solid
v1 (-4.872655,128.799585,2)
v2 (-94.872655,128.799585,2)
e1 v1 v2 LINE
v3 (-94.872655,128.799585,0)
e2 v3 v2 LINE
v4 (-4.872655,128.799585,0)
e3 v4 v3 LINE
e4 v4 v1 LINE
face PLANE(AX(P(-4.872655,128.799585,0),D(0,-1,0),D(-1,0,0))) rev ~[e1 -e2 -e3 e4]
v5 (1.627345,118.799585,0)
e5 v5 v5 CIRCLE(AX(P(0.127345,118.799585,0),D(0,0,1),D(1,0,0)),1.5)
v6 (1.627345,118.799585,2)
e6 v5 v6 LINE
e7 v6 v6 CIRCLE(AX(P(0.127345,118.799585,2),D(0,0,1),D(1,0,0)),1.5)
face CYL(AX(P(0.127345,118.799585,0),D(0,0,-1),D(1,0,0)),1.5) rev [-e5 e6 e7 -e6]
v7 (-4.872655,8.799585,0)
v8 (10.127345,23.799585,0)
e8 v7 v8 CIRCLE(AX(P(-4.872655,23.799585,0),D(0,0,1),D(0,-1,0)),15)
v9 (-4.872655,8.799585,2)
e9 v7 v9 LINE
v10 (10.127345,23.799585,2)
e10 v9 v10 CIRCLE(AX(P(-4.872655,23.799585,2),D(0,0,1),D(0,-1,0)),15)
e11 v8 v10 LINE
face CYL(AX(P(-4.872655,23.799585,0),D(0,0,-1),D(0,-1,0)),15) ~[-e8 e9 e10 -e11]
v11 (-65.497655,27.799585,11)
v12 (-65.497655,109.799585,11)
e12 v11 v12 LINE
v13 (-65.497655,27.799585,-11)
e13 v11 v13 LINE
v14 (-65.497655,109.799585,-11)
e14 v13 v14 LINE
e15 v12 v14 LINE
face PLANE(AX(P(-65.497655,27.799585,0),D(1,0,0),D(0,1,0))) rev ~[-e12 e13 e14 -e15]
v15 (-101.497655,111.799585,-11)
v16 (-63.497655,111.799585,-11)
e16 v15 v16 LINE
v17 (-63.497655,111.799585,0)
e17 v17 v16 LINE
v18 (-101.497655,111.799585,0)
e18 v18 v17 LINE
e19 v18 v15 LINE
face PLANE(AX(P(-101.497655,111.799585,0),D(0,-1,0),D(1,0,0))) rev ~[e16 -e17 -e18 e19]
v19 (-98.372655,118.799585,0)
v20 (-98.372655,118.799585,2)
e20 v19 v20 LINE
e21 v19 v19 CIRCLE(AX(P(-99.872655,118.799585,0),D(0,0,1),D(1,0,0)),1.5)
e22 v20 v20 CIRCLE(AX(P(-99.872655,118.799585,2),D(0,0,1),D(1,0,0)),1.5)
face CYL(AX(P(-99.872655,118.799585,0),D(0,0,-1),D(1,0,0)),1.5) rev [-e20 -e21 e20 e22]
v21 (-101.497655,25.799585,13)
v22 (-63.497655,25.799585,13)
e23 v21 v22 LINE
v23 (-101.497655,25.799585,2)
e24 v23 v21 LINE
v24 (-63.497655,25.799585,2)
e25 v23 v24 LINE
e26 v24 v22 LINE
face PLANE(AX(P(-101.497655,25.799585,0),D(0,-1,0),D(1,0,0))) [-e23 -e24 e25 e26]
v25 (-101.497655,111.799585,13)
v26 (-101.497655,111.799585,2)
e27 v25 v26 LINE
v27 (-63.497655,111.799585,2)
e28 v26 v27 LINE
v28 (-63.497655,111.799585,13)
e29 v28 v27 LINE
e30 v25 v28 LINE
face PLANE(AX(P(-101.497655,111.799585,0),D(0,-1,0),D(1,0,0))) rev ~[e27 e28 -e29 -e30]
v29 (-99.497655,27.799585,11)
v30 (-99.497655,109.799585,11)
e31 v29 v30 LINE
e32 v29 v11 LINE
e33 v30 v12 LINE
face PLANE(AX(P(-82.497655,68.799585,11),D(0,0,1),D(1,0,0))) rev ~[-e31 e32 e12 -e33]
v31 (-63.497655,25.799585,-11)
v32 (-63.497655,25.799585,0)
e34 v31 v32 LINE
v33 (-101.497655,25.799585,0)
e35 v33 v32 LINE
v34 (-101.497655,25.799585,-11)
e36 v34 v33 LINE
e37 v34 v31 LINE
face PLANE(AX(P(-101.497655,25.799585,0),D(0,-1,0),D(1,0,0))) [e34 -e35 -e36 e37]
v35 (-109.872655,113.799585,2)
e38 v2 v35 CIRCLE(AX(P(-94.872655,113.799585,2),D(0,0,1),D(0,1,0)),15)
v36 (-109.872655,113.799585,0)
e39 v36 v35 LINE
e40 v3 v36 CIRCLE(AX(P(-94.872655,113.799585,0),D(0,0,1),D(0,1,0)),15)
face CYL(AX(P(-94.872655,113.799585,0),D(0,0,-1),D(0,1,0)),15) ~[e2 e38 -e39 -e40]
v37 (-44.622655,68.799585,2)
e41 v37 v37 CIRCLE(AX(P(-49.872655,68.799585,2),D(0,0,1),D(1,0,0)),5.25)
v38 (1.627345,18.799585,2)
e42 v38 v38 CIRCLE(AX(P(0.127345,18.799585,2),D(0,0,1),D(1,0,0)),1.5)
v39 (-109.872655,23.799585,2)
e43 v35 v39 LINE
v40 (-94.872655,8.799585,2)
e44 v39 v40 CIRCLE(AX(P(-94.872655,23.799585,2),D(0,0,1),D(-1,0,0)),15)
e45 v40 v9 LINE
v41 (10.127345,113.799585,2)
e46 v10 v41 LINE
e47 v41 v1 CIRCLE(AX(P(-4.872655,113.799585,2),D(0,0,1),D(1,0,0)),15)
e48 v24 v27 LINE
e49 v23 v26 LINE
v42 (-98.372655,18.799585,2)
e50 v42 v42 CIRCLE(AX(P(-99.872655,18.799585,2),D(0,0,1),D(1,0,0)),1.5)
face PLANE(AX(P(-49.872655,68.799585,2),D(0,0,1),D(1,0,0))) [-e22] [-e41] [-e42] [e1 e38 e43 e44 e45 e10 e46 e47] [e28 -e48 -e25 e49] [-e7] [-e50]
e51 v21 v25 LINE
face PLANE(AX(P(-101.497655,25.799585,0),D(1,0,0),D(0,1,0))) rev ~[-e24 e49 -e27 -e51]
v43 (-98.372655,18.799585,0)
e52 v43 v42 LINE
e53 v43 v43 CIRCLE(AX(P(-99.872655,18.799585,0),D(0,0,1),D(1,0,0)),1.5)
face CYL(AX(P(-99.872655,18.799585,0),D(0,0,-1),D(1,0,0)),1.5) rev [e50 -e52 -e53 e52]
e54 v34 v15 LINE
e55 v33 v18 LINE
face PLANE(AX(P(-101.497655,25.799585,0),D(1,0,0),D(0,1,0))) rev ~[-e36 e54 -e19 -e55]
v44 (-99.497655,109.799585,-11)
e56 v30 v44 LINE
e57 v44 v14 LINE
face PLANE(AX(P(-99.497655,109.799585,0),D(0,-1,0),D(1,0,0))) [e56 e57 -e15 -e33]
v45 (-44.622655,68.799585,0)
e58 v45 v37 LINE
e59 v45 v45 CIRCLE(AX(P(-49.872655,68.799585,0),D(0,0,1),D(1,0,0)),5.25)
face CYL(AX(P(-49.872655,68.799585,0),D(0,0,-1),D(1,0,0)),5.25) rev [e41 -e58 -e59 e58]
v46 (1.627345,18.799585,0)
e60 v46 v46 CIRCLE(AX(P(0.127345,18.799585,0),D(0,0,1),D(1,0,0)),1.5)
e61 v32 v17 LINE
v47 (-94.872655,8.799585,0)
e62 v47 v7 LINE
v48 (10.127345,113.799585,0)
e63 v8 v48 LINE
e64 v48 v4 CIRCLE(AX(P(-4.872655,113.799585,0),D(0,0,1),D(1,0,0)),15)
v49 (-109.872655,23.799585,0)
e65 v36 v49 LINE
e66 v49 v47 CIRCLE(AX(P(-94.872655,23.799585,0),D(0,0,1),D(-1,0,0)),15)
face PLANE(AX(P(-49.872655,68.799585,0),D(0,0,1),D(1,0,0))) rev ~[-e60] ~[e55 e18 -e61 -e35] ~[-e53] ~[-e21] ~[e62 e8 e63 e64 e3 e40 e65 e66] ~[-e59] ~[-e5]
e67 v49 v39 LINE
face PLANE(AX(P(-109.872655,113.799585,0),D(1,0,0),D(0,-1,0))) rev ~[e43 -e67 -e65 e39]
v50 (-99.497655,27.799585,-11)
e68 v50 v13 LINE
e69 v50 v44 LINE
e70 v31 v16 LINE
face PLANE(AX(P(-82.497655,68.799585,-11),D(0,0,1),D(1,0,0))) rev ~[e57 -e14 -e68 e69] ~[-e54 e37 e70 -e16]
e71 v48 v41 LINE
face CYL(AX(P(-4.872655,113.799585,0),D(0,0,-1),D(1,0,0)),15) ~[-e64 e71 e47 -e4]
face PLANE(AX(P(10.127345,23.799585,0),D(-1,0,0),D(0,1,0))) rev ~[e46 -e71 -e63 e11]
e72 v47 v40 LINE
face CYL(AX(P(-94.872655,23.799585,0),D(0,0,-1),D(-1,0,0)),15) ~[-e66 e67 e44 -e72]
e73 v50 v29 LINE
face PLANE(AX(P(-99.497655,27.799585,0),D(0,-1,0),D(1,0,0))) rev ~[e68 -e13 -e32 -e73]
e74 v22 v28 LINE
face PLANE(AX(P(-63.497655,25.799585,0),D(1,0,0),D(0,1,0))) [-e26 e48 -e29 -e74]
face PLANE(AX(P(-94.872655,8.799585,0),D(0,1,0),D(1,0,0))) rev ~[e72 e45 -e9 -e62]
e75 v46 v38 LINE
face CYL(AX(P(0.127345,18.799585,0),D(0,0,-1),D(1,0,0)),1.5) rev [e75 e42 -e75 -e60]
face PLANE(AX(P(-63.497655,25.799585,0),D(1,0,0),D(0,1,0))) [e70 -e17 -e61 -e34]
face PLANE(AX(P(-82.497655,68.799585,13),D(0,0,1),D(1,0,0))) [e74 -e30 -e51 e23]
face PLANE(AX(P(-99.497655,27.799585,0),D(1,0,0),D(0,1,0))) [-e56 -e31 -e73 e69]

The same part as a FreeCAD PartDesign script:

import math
import FreeCAD as App
import Part
import Sketcher

V = App.Vector

doc = App.newDocument("Part")
body = doc.addObject("PartDesign::Body", "Body")

# Sketch on XY plane
sketch1 = body.newObject("Sketcher::SketchObject", "Sketch")
sketch1.AttachmentSupport = (doc.getObject("XY_Plane"), [""])
sketch1.MapMode = "FlatFace"
sketch1.addGeometry([
    Part.LineSegment(V(-101, 112, 0), V(-101, 26, 0)),
    Part.LineSegment(V(-101, 26, 0), V(-63, 26, 0)),
    Part.LineSegment(V(-63, 26, 0), V(-63, 112, 0)),
    Part.LineSegment(V(-63, 112, 0), V(-101, 112, 0)),
], False)
sketch1.addConstraint([
    Sketcher.Constraint("Coincident", 0, 2, 1, 1),
    Sketcher.Constraint("Coincident", 1, 2, 2, 1),
    Sketcher.Constraint("Coincident", 2, 2, 3, 1),
    Sketcher.Constraint("Coincident", 3, 2, 0, 1),
    Sketcher.Constraint("Vertical", 0),
    Sketcher.Constraint("Horizontal", 1),
    Sketcher.Constraint("Vertical", 2),
    Sketcher.Constraint("Horizontal", 3),
    Sketcher.Constraint("DistanceX", 1, 1, 1, 2, 38.0),
    Sketcher.Constraint("DistanceY", 0, 2, 0, 1, 86.0),
    Sketcher.Constraint("DistanceX", 0, 2, -1, 1, 101.497655),
    Sketcher.Constraint("DistanceY", -1, 1, 0, 2, 25.799585),
])
pad1 = body.newObject("PartDesign::Pad", "Pad")
pad1.Profile = sketch1
pad1.Length = 13

# Sketch on XY plane
sketch2 = body.newObject("Sketcher::SketchObject", "Sketch001")
sketch2.AttachmentSupport = (doc.getObject("XY_Plane"), [""])
sketch2.MapMode = "FlatFace"
sketch2.addGeometry([
    Part.LineSegment(V(-99, 110, 0), V(-99, 28, 0)),
    Part.LineSegment(V(-99, 28, 0), V(-65, 28, 0)),
    Part.LineSegment(V(-65, 28, 0), V(-65, 110, 0)),
    Part.LineSegment(V(-65, 110, 0), V(-99, 110, 0)),
], False)
sketch2.addConstraint([
    Sketcher.Constraint("Coincident", 0, 2, 1, 1),
    Sketcher.Constraint("Coincident", 1, 2, 2, 1),
    Sketcher.Constraint("Coincident", 2, 2, 3, 1),
    Sketcher.Constraint("Coincident", 3, 2, 0, 1),
    Sketcher.Constraint("Vertical", 0),
    Sketcher.Constraint("Horizontal", 1),
    Sketcher.Constraint("Vertical", 2),
    Sketcher.Constraint("Horizontal", 3),
    Sketcher.Constraint("DistanceX", 1, 1, 1, 2, 34.0),
    Sketcher.Constraint("DistanceY", 0, 2, 0, 1, 82.0),
    Sketcher.Constraint("DistanceX", 0, 2, -1, 1, 99.497655),
    Sketcher.Constraint("DistanceY", -1, 1, 0, 2, 27.799585),
])
pocket1 = body.newObject("PartDesign::Pocket", "Pocket")
pocket1.Profile = sketch2
pocket1.Length = 11
pocket1.Reversed = True

# Sketch on XY plane
sketch3 = body.newObject("Sketcher::SketchObject", "Sketch002")
sketch3.AttachmentSupport = (doc.getObject("XY_Plane"), [""])
sketch3.MapMode = "FlatFace"
sketch3.addGeometry([
    Part.LineSegment(V(-101, 112, 0), V(-101, 26, 0)),  # 0
    Part.LineSegment(V(-101, 26, 0), V(-63, 26, 0)),  # 1
    Part.LineSegment(V(-63, 26, 0), V(-63, 112, 0)),  # 2
    Part.LineSegment(V(-63, 112, 0), V(-101, 112, 0)),  # 3
    Part.LineSegment(V(-65, 28, 0), V(-99, 28, 0)),  # 4
    Part.LineSegment(V(-99, 28, 0), V(-99, 110, 0)),  # 5
    Part.LineSegment(V(-99, 110, 0), V(-65, 110, 0)),  # 6
    Part.LineSegment(V(-65, 110, 0), V(-65, 28, 0)),  # 7
], False)
sketch3.addConstraint([
    Sketcher.Constraint("Coincident", 0, 2, 1, 1),
    Sketcher.Constraint("Coincident", 1, 2, 2, 1),
    Sketcher.Constraint("Coincident", 2, 2, 3, 1),
    Sketcher.Constraint("Coincident", 3, 2, 0, 1),
    Sketcher.Constraint("Coincident", 4, 2, 5, 1),
    Sketcher.Constraint("Coincident", 5, 2, 6, 1),
    Sketcher.Constraint("Coincident", 6, 2, 7, 1),
    Sketcher.Constraint("Coincident", 7, 2, 4, 1),
    Sketcher.Constraint("Vertical", 0),
    Sketcher.Constraint("Horizontal", 1),
    Sketcher.Constraint("Vertical", 2),
    Sketcher.Constraint("Horizontal", 3),
    Sketcher.Constraint("Horizontal", 4),
    Sketcher.Constraint("Vertical", 5),
    Sketcher.Constraint("Horizontal", 6),
    Sketcher.Constraint("Vertical", 7),
    Sketcher.Constraint("DistanceX", 1, 1, 1, 2, 38.0),
    Sketcher.Constraint("DistanceX", 4, 2, 4, 1, 34.0),
    Sketcher.Constraint("DistanceY", 0, 2, 0, 1, 86.0),
    Sketcher.Constraint("DistanceY", 5, 1, 5, 2, 82.0),
    Sketcher.Constraint("DistanceX", 0, 2, 4, 2, 2.0),
    Sketcher.Constraint("DistanceY", 0, 2, 4, 2, 2.0),
    Sketcher.Constraint("DistanceX", 0, 2, -1, 1, 101.497655),
    Sketcher.Constraint("DistanceY", -1, 1, 0, 2, 25.799585),
])
pad2 = body.newObject("PartDesign::Pad", "Pad001")
pad2.Profile = sketch3
pad2.Length = 11
pad2.Reversed = True

# Sketch on XY plane
sketch4 = body.newObject("Sketcher::SketchObject", "Sketch003")
sketch4.AttachmentSupport = (doc.getObject("XY_Plane"), [""])
sketch4.MapMode = "FlatFace"
sketch4.addGeometry([
    Part.LineSegment(V(-94.9, 8.8, 0), V(-4.9, 8.8, 0)),  # 0
    Part.ArcOfCircle(Part.Circle(V(-4.9, 23.8, 0), V(0, 0, 1), 15), math.radians(-90), math.radians(0)),  # 1
    Part.LineSegment(V(10.1, 23.8, 0), V(10.1, 113.8, 0)),  # 2
    Part.ArcOfCircle(Part.Circle(V(-4.9, 113.8, 0), V(0, 0, 1), 15), math.radians(0), math.radians(90)),  # 3
    Part.LineSegment(V(-4.9, 128.8, 0), V(-94.9, 128.8, 0)),  # 4
    Part.ArcOfCircle(Part.Circle(V(-94.9, 113.8, 0), V(0, 0, 1), 15), math.radians(90), math.radians(180)),  # 5
    Part.LineSegment(V(-109.9, 113.8, 0), V(-109.9, 23.8, 0)),  # 6
    Part.ArcOfCircle(Part.Circle(V(-94.9, 23.8, 0), V(0, 0, 1), 15), math.radians(180), math.radians(270)),  # 7
    Part.Circle(V(-99.9, 18.8, 0), V(0, 0, 1), 1.5),  # 8
    Part.LineSegment(V(-63.5, 25.8, 0), V(-101.5, 25.8, 0)),  # 9
    Part.LineSegment(V(-101.5, 25.8, 0), V(-101.5, 111.8, 0)),  # 10
    Part.LineSegment(V(-101.5, 111.8, 0), V(-63.5, 111.8, 0)),  # 11
    Part.LineSegment(V(-63.5, 111.8, 0), V(-63.5, 25.8, 0)),  # 12
    Part.Circle(V(0.1, 18.8, 0), V(0, 0, 1), 1.5),  # 13
    Part.Circle(V(-49.9, 68.8, 0), V(0, 0, 1), 5.2),  # 14
    Part.Circle(V(-99.9, 118.8, 0), V(0, 0, 1), 1.5),  # 15
    Part.Circle(V(0.1, 118.8, 0), V(0, 0, 1), 1.5),  # 16
], False)
sketch4.addConstraint([
    Sketcher.Constraint("Tangent", 0, 2, 1, 1),
    Sketcher.Constraint("Tangent", 1, 2, 2, 1),
    Sketcher.Constraint("Tangent", 2, 2, 3, 1),
    Sketcher.Constraint("Tangent", 3, 2, 4, 1),
    Sketcher.Constraint("Tangent", 4, 2, 5, 1),
    Sketcher.Constraint("Tangent", 5, 2, 6, 1),
    Sketcher.Constraint("Tangent", 6, 2, 7, 1),
    Sketcher.Constraint("Tangent", 7, 2, 0, 1),
    Sketcher.Constraint("Coincident", 9, 2, 10, 1),
    Sketcher.Constraint("Coincident", 10, 2, 11, 1),
    Sketcher.Constraint("Coincident", 11, 2, 12, 1),
    Sketcher.Constraint("Coincident", 12, 2, 9, 1),
    Sketcher.Constraint("Horizontal", 0),
    Sketcher.Constraint("Vertical", 2),
    Sketcher.Constraint("Horizontal", 4),
    Sketcher.Constraint("Vertical", 6),
    Sketcher.Constraint("Horizontal", 9),
    Sketcher.Constraint("Vertical", 10),
    Sketcher.Constraint("Horizontal", 11),
    Sketcher.Constraint("Vertical", 12),
    Sketcher.Constraint("Equal", 1, 3),
    Sketcher.Constraint("Equal", 3, 5),
    Sketcher.Constraint("Equal", 5, 7),
    Sketcher.Constraint("Equal", 8, 13),
    Sketcher.Constraint("Equal", 13, 15),
    Sketcher.Constraint("Equal", 15, 16),
    Sketcher.Constraint("Horizontal", 8, 3, 13, 3),
    Sketcher.Constraint("Horizontal", 15, 3, 16, 3),
    Sketcher.Constraint("Vertical", 8, 3, 15, 3),
    Sketcher.Constraint("Vertical", 13, 3, 16, 3),
    Sketcher.Constraint("Equal", 4, 2),
    Sketcher.Constraint("Diameter", 8, 3.0),
    Sketcher.Constraint("Radius", 1, 15.0),
    Sketcher.Constraint("Diameter", 14, 10.5),
    Sketcher.Constraint("DistanceX", 0, 1, 0, 2, 90.0),
    Sketcher.Constraint("DistanceX", 9, 2, 9, 1, 38.0),
    Sketcher.Constraint("DistanceY", 10, 1, 10, 2, 86.0),
    Sketcher.Constraint("DistanceX", 8, 3, 7, 3, 5.0),
    Sketcher.Constraint("DistanceY", 8, 3, 7, 3, 5.0),
    Sketcher.Constraint("DistanceX", 1, 3, 13, 3, 5.0),
    Sketcher.Constraint("DistanceX", 14, 3, 1, 3, 45.0),
    Sketcher.Constraint("DistanceY", 1, 3, 14, 3, 45.0),
    Sketcher.Constraint("DistanceY", 5, 3, 15, 3, 5.0),
    Sketcher.Constraint("DistanceY", 7, 3, 9, 2, 2.0),
    Sketcher.Constraint("DistanceX", 9, 2, 7, 3, 6.625),
    Sketcher.Constraint("DistanceX", 1, 3, -1, 1, 4.872655),
    Sketcher.Constraint("DistanceY", -1, 1, 1, 3, 23.799585),
])
pad3 = body.newObject("PartDesign::Pad", "Pad002")
pad3.Profile = sketch4
pad3.Length = 2

doc.recompute()
